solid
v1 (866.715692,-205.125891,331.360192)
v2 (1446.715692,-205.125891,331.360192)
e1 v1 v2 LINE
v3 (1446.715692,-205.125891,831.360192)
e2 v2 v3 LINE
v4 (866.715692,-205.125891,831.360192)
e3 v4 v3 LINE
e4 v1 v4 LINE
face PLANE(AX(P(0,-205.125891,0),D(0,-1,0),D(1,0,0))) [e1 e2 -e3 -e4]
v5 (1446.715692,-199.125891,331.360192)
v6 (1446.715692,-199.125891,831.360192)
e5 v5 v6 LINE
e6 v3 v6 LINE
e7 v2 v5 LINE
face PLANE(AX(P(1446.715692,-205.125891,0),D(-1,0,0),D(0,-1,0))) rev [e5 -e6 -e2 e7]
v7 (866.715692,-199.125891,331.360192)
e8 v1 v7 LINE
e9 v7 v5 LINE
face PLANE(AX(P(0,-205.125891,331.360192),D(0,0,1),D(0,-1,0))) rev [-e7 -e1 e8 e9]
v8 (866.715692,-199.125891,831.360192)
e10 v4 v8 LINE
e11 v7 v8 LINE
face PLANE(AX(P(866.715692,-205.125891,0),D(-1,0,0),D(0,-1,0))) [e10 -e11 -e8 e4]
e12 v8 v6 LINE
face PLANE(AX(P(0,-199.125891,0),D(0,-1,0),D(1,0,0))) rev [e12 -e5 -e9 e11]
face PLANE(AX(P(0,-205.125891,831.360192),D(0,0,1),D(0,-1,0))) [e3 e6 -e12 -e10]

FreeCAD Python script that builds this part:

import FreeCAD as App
import Part
import Sketcher

V = App.Vector
Q = App.Units.Quantity

doc = App.newDocument("Part")
params = doc.addObject("Spreadsheet::Sheet", "Params")
for row, (alias, value) in enumerate([
    ("sketch1_width", "580 mm"),
    ("sketch1_height", "500 mm"),
    ("pad1_length", "6 mm"),
], start=1):
    params.set(f"A{row}", alias)
    params.set(f"B{row}", "=" + value)
    params.setAlias(f"B{row}", alias)

body = doc.addObject("PartDesign::Body", "Body")

# Sketch on XZ plane
sketch1 = body.newObject("Sketcher::SketchObject", "Sketch")
sketch1.AttachmentSupport = (doc.getObject("XZ_Plane"), [""])
sketch1.MapMode = "FlatFace"
sketch1.AttachmentOffset = App.Placement(V(0, 0, 199.125891), App.Rotation())
sketch1.addGeometry(Part.LineSegment(V(867, 831, 0), V(867, 331, 0)), False)
sketch1.addGeometry(Part.LineSegment(V(867, 331, 0), V(1447, 331, 0)), False)
sketch1.addGeometry(Part.LineSegment(V(1447, 331, 0), V(1447, 831, 0)), False)
sketch1.addGeometry(Part.LineSegment(V(1447, 831, 0), V(867, 831, 0)), False)
sketch1.addConstraint(Sketcher.Constraint("Coincident", 0, 2, 1, 1))
sketch1.addConstraint(Sketcher.Constraint("Coincident", 1, 2, 2, 1))
sketch1.addConstraint(Sketcher.Constraint("Coincident", 2, 2, 3, 1))
sketch1.addConstraint(Sketcher.Constraint("Coincident", 3, 2, 0, 1))
sketch1.addConstraint(Sketcher.Constraint("Vertical", 0))
sketch1.addConstraint(Sketcher.Constraint("Horizontal", 1))
sketch1.addConstraint(Sketcher.Constraint("Vertical", 2))
sketch1.addConstraint(Sketcher.Constraint("Horizontal", 3))
sketch1.addConstraint(Sketcher.Constraint("DistanceX", 1, 1, 1, 2, Q("580 mm")))
sketch1.addConstraint(Sketcher.Constraint("DistanceY", 0, 2, 0, 1, Q("500 mm")))
sketch1.addConstraint(Sketcher.Constraint("DistanceX", -1, 1, 0, 2, Q("866.715692 mm")))
sketch1.addConstraint(Sketcher.Constraint("DistanceY", -1, 1, 0, 2, Q("331.360192 mm")))
sketch1.setExpression("Constraints[8]", "Params.sketch1_width")
sketch1.setExpression("Constraints[9]", "Params.sketch1_height")
pad1 = body.newObject("PartDesign::Pad", "Pad")
pad1.Profile = sketch1
pad1.setExpression("Length", "Params.pad1_length")

doc.recompute()
